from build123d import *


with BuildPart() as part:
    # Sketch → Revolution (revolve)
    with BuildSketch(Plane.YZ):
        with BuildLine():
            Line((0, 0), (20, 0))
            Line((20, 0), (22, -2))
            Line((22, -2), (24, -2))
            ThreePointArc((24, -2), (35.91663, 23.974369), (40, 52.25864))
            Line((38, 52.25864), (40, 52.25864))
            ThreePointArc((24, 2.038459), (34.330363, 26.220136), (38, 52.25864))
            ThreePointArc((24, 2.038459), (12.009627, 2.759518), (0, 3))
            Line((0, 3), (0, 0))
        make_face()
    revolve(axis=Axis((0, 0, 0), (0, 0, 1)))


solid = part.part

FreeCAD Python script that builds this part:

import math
import FreeCAD as App
import Part
import Sketcher
from FreeCAD import Vector
Q = App.Units.Quantity

doc = App.newDocument("Part")
body = doc.addObject("PartDesign::Body", "Body")

sketch1 = doc.addObject("Sketcher::SketchObject", "Sketch")
body.addObject(sketch1)
sketch1.AttachmentSupport = (doc.YZ_Plane, [""])
sketch1.MapMode = "FlatFace"
sketch1.addGeometry([
    Part.LineSegment(Vector(0, 0, 0), Vector(20, 0, 0)),
    Part.LineSegment(Vector(20, 0, 0), Vector(22, -2, 0)),
    Part.LineSegment(Vector(22, -2, 0), Vector(24, -2, 0)),
    Part.ArcOfCircle(Part.Circle(Vector(-60.000013, 52.258644, 0), Vector(0, 0, 1), 100.000013), math.radians(-32.859878), math.radians(-0.000002)),
    Part.LineSegment(Vector(40, 52.25864, 0), Vector(38, 52.25864, 0)),
    Part.ArcOfCircle(Part.Circle(Vector(-61.996667, 53.073453, 0), Vector(0, 0, 1), 99.999986), math.radians(-30.687146), math.radians(-0.466859)),
    Part.ArcOfCircle(Part.Circle(Vector(-0.000018, -297.000433, 0), Vector(0, 0, 1), 300.000433), math.radians(85.411437), math.radians(89.999997)),
    Part.LineSegment(Vector(0, 3, 0), Vector(0, 0, 0)),
], False)
sketch1.addConstraint([
    Sketcher.Constraint("Coincident", 0, 2, 1, 1),
    Sketcher.Constraint("Coincident", 1, 2, 2, 1),
    Sketcher.Constraint("Coincident", 2, 2, 3, 1),
    Sketcher.Constraint("Coincident", 3, 2, 4, 1),
    Sketcher.Constraint("Coincident", 4, 2, 5, 2),
    Sketcher.Constraint("Coincident", 5, 1, 6, 1),
    Sketcher.Constraint("Coincident", 6, 2, 7, 1),
    Sketcher.Constraint("Coincident", 7, 2, 0, 1),
    Sketcher.Constraint("Horizontal", 0),
    Sketcher.Constraint("Horizontal", 2),
    Sketcher.Constraint("Horizontal", 4),
    Sketcher.Constraint("Vertical", 7),
    Sketcher.Constraint("Coincident", 7, 2, -1, 1),
    Sketcher.Constraint("Vertical", 2, 2, 5, 1),
    Sketcher.Constraint("Equal", 2, 4),
    Sketcher.Constraint("DistanceX", 0, 1, 0, 2, Q("20 mm")),
    Sketcher.Constraint("DistanceX", 2, 1, 2, 2, Q("2 mm")),
    Sketcher.Constraint("DistanceY", 7, 2, 7, 1, Q("3 mm")),
    Sketcher.Constraint("Angle", 1, Q("-45 deg")),
    Sketcher.Constraint("DistanceX", -1, 1, 1, 2, Q("22 mm")),
    Sketcher.Constraint("DistanceX", -1, 1, 3, 2, Q("40 mm")),
    Sketcher.Constraint("Radius", 3, Q("100.000013 mm")),
    Sketcher.Constraint("Radius", 5, Q("99.999986 mm")),
    Sketcher.Constraint("Radius", 6, Q("300.000433 mm")),
    Sketcher.Constraint("DistanceY", -1, 1, 3, 2, Q("52.25864 mm")),
    Sketcher.Constraint("DistanceY", 3, 3, 5, 3, Q("0.814809 mm")),
])
revolution = doc.addObject("PartDesign::Revolution", "Revolution")
body.addObject(revolution)
revolution.Profile = sketch1
revolution.ReferenceAxis = (sketch1, ["V_Axis"])
revolution.Angle = 360

doc.recompute()
